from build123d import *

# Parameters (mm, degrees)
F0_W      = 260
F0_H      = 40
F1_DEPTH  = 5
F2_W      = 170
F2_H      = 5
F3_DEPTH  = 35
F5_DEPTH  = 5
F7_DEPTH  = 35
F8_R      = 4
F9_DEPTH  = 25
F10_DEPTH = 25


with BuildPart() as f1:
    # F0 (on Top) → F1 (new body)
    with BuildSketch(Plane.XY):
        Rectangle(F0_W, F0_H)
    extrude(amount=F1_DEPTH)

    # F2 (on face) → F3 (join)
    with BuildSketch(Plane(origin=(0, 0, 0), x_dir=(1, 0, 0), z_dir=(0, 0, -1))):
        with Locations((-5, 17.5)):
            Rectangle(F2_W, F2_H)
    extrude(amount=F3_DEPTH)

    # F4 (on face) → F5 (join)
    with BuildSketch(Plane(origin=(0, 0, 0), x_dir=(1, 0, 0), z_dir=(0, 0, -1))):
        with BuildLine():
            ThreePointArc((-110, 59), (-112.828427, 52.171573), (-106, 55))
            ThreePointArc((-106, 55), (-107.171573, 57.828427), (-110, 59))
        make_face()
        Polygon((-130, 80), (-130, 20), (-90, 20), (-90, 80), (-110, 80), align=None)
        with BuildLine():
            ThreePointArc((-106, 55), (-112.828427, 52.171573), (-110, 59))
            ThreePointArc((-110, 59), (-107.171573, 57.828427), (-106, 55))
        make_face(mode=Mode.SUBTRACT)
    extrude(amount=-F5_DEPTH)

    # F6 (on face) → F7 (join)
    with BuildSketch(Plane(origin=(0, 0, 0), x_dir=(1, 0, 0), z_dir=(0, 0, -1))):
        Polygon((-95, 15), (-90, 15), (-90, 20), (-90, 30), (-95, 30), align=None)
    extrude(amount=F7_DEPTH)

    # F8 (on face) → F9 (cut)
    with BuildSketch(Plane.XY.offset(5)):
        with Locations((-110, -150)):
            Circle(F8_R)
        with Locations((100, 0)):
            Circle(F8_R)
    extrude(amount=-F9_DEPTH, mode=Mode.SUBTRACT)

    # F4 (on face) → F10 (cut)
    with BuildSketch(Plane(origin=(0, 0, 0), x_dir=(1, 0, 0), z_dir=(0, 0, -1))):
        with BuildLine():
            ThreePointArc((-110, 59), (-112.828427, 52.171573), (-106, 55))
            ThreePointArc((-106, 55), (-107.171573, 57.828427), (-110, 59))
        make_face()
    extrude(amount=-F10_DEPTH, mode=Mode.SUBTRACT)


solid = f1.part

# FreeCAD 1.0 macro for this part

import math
import FreeCAD as App
import Part
import Sketcher

doc = App.newDocument("Part")
body = doc.addObject("PartDesign::Body", "Body")

# Sketch on XY plane
sketch1 = doc.addObject("Sketcher::SketchObject", "Sketch")
body.addObject(sketch1)
sketch1.AttachmentSupport = (doc.XY_Plane, [""])
sketch1.MapMode = "FlatFace"
sketch1.addGeometry(Part.LineSegment(App.Vector(-130, 20, 0), App.Vector(-130, -20, 0)), False)
sketch1.addGeometry(Part.LineSegment(App.Vector(-130, -20, 0), App.Vector(130, -20, 0)), False)
sketch1.addGeometry(Part.LineSegment(App.Vector(130, -20, 0), App.Vector(130, 20, 0)), False)
sketch1.addGeometry(Part.LineSegment(App.Vector(130, 20, 0), App.Vector(-130, 20, 0)), False)
sketch1.addConstraint(Sketcher.Constraint("Coincident", 0, 2, 1, 1))
sketch1.addConstraint(Sketcher.Constraint("Coincident", 1, 2, 2, 1))
sketch1.addConstraint(Sketcher.Constraint("Coincident", 2, 2, 3, 1))
sketch1.addConstraint(Sketcher.Constraint("Coincident", 3, 2, 0, 1))
sketch1.addConstraint(Sketcher.Constraint("Vertical", 0))
sketch1.addConstraint(Sketcher.Constraint("Horizontal", 1))
sketch1.addConstraint(Sketcher.Constraint("Vertical", 2))
sketch1.addConstraint(Sketcher.Constraint("Horizontal", 3))
sketch1.addConstraint(Sketcher.Constraint("Symmetric", 0, 2, 2, 2, -1, 1))
sketch1.addConstraint(Sketcher.Constraint("DistanceX", 1, 1, 1, 2, 260.0))
sketch1.addConstraint(Sketcher.Constraint("DistanceY", 0, 2, 0, 1, 40.0))
pad1 = doc.addObject("PartDesign::Pad", "Pad")
body.addObject(pad1)
pad1.Profile = sketch1
pad1.Length = 5

# Sketch on XY plane
sketch2 = doc.addObject("Sketcher::SketchObject", "Sketch001")
body.addObject(sketch2)
sketch2.AttachmentSupport = (doc.XY_Plane, [""])
sketch2.MapMode = "FlatFace"
sketch2.addGeometry(Part.LineSegment(App.Vector(-90, -20, 0), App.Vector(-90, -15, 0)), False)
sketch2.addGeometry(Part.LineSegment(App.Vector(-90, -15, 0), App.Vector(80, -15, 0)), False)
sketch2.addGeometry(Part.LineSegment(App.Vector(80, -15, 0), App.Vector(80, -20, 0)), False)
sketch2.addGeometry(Part.LineSegment(App.Vector(80, -20, 0), App.Vector(-90, -20, 0)), False)
sketch2.addConstraint(Sketcher.Constraint("Coincident", 0, 2, 1, 1))
sketch2.addConstraint(Sketcher.Constraint("Coincident", 1, 2, 2, 1))
sketch2.addConstraint(Sketcher.Constraint("Coincident", 2, 2, 3, 1))
sketch2.addConstraint(Sketcher.Constraint("Coincident", 3, 2, 0, 1))
sketch2.addConstraint(Sketcher.Constraint("Vertical", 0))
sketch2.addConstraint(Sketcher.Constraint("Horizontal", 1))
sketch2.addConstraint(Sketcher.Constraint("Vertical", 2))
sketch2.addConstraint(Sketcher.Constraint("Horizontal", 3))
sketch2.addConstraint(Sketcher.Constraint("DistanceX", 1, 1, 1, 2, 170.0))
sketch2.addConstraint(Sketcher.Constraint("DistanceY", 0, 1, 0, 2, 5.0))
sketch2.addConstraint(Sketcher.Constraint("DistanceX", 0, 2, -1, 1, 90.0))
sketch2.addConstraint(Sketcher.Constraint("DistanceY", 0, 2, -1, 1, 15.0))
pad2 = doc.addObject("PartDesign::Pad", "Pad001")
body.addObject(pad2)
pad2.Profile = sketch2
pad2.Length = 35
pad2.Reversed = True

# Sketch on XY plane
sketch3 = doc.addObject("Sketcher::SketchObject", "Sketch002")
body.addObject(sketch3)
sketch3.AttachmentSupport = (doc.XY_Plane, [""])
sketch3.MapMode = "FlatFace"
sketch3.addGeometry(Part.LineSegment(App.Vector(-130, -80, 0), App.Vector(-130, -20, 0)), False)
sketch3.addGeometry(Part.LineSegment(App.Vector(-130, -20, 0), App.Vector(-90, -20, 0)), False)
sketch3.addGeometry(Part.LineSegment(App.Vector(-90, -20, 0), App.Vector(-90, -80, 0)), False)
sketch3.addGeometry(Part.LineSegment(App.Vector(-90, -80, 0), App.Vector(-130, -80, 0)), False)
sketch3.addGeometry(Part.ArcOfCircle(Part.Circle(App.Vector(-110, -55, 0), App.Vector(0, 0, 1), 4), math.radians(-90), math.radians(0)), False)
sketch3.addGeometry(Part.ArcOfCircle(Part.Circle(App.Vector(-110, -55, 0), App.Vector(0, 0, 1), 4), math.radians(0), math.radians(270)), False)
sketch3.addConstraint(Sketcher.Constraint("Coincident", 0, 2, 1, 1))
sketch3.addConstraint(Sketcher.Constraint("Coincident", 1, 2, 2, 1))
sketch3.addConstraint(Sketcher.Constraint("Coincident", 2, 2, 3, 1))
sketch3.addConstraint(Sketcher.Constraint("Coincident", 3, 2, 0, 1))
sketch3.addConstraint(Sketcher.Constraint("Tangent", 4, 1, 5, 2))
sketch3.addConstraint(Sketcher.Constraint("Coincident", 5, 1, 4, 2))
sketch3.addConstraint(Sketcher.Constraint("Vertical", 0))
sketch3.addConstraint(Sketcher.Constraint("Horizontal", 1))
sketch3.addConstraint(Sketcher.Constraint("Vertical", 2))
sketch3.addConstraint(Sketcher.Constraint("Horizontal", 3))
sketch3.addConstraint(Sketcher.Constraint("Horizontal", 4, 3, 5, 1))
sketch3.addConstraint(Sketcher.Constraint("Vertical", 5, 3, 4, 1))
sketch3.addConstraint(Sketcher.Constraint("Radius", 4, 4.0))
sketch3.addConstraint(Sketcher.Constraint("DistanceX", 1, 1, 1, 2, 40.0))
sketch3.addConstraint(Sketcher.Constraint("DistanceY", 0, 1, 0, 2, 60.0))
sketch3.addConstraint(Sketcher.Constraint("DistanceX", 4, 3, -1, 1, 110.0))
sketch3.addConstraint(Sketcher.Constraint("DistanceY", 4, 3, -1, 1, 55.0))
sketch3.addConstraint(Sketcher.Constraint("DistanceX", 0, 2, -1, 1, 130.0))
sketch3.addConstraint(Sketcher.Constraint("DistanceY", 0, 2, -1, 1, 20.0))
pad3 = doc.addObject("PartDesign::Pad", "Pad002")
body.addObject(pad3)
pad3.Profile = sketch3
pad3.Length = 5

# Sketch on XY plane
sketch4 = doc.addObject("Sketcher::SketchObject", "Sketch003")
body.addObject(sketch4)
sketch4.AttachmentSupport = (doc.XY_Plane, [""])
sketch4.MapMode = "FlatFace"
sketch4.addGeometry(Part.LineSegment(App.Vector(-95, -15, 0), App.Vector(-90, -15, 0)), False)
sketch4.addGeometry(Part.LineSegment(App.Vector(-90, -15, 0), App.Vector(-90, -30, 0)), False)
sketch4.addGeometry(Part.LineSegment(App.Vector(-90, -30, 0), App.Vector(-95, -30, 0)), False)
sketch4.addGeometry(Part.LineSegment(App.Vector(-95, -30, 0), App.Vector(-95, -15, 0)), False)
sketch4.addConstraint(Sketcher.Constraint("Coincident", 0, 2, 1, 1))
sketch4.addConstraint(Sketcher.Constraint("Coincident", 1, 2, 2, 1))
sketch4.addConstraint(Sketcher.Constraint("Coincident", 2, 2, 3, 1))
sketch4.addConstraint(Sketcher.Constraint("Coincident", 3, 2, 0, 1))
sketch4.addConstraint(Sketcher.Constraint("Horizontal", 0))
sketch4.addConstraint(Sketcher.Constraint("Vertical", 1))
sketch4.addConstraint(Sketcher.Constraint("Horizontal", 2))
sketch4.addConstraint(Sketcher.Constraint("Vertical", 3))
sketch4.addConstraint(Sketcher.Constraint("DistanceX", 0, 1, 0, 2, 5.0))
sketch4.addConstraint(Sketcher.Constraint("DistanceY", 1, 2, 1, 1, 15.0))
sketch4.addConstraint(Sketcher.Constraint("DistanceX", 0, 2, -1, 1, 90.0))
sketch4.addConstraint(Sketcher.Constraint("DistanceY", 0, 2, -1, 1, 15.0))
pad4 = doc.addObject("PartDesign::Pad", "Pad003")
body.addObject(pad4)
pad4.Profile = sketch4
pad4.Length = 35
pad4.Reversed = True

# Sketch on XY plane
sketch5 = doc.addObject("Sketcher::SketchObject", "Sketch004")
body.addObject(sketch5)
sketch5.AttachmentSupport = (doc.XY_Plane, [""])
sketch5.MapMode = "FlatFace"
sketch5.AttachmentOffset = App.Placement(App.Vector(0, 0, 5), App.Rotation())
sketch5.addGeometry(Part.Circle(App.Vector(-110, -150, 0), App.Vector(0, 0, 1), 4), False)
sketch5.addGeometry(Part.Circle(App.Vector(100, 0, 0), App.Vector(0, 0, 1), 4), False)
sketch5.addConstraint(Sketcher.Constraint("Equal", 0, 1))
sketch5.addConstraint(Sketcher.Constraint("PointOnObject", 1, 3, -1))
sketch5.addConstraint(Sketcher.Constraint("Diameter", 0, 8.0))
sketch5.addConstraint(Sketcher.Constraint("DistanceX", 0, 3, -1, 1, 110.0))
sketch5.addConstraint(Sketcher.Constraint("DistanceY", 0, 3, -1, 1, 150.0))
sketch5.addConstraint(Sketcher.Constraint("DistanceX", -1, 1, 1, 3, 100.0))
pocket1 = doc.addObject("PartDesign::Pocket", "Pocket")
body.addObject(pocket1)
pocket1.Profile = sketch5
pocket1.Length = 25

# Sketch on XY plane
sketch6 = doc.addObject("Sketcher::SketchObject", "Sketch005")
body.addObject(sketch6)
sketch6.AttachmentSupport = (doc.XY_Plane, [""])
sketch6.MapMode = "FlatFace"
sketch6.addGeometry(Part.ArcOfCircle(Part.Circle(App.Vector(-110, -55, 0), App.Vector(0, 0, 1), 4), math.radians(0), math.radians(270)), False)
sketch6.addGeometry(Part.ArcOfCircle(Part.Circle(App.Vector(-110, -55, 0), App.Vector(0, 0, 1), 4), math.radians(-90), math.radians(0)), False)
sketch6.addConstraint(Sketcher.Constraint("Tangent", 0, 1, 1, 2))
sketch6.addConstraint(Sketcher.Constraint("Coincident", 1, 1, 0, 2))
sketch6.addConstraint(Sketcher.Constraint("Horizontal", 1, 3, 0, 1))
sketch6.addConstraint(Sketcher.Constraint("Vertical", 0, 3, 1, 1))
sketch6.addConstraint(Sketcher.Constraint("Radius", 0, 4.0))
sketch6.addConstraint(Sketcher.Constraint("DistanceX", 0, 3, -1, 1, 110.0))
sketch6.addConstraint(Sketcher.Constraint("DistanceY", 0, 3, -1, 1, 55.0))
pocket2 = doc.addObject("PartDesign::Pocket", "Pocket001")
body.addObject(pocket2)
pocket2.Profile = sketch6
pocket2.Length = 25
pocket2.Reversed = True

doc.recompute()
